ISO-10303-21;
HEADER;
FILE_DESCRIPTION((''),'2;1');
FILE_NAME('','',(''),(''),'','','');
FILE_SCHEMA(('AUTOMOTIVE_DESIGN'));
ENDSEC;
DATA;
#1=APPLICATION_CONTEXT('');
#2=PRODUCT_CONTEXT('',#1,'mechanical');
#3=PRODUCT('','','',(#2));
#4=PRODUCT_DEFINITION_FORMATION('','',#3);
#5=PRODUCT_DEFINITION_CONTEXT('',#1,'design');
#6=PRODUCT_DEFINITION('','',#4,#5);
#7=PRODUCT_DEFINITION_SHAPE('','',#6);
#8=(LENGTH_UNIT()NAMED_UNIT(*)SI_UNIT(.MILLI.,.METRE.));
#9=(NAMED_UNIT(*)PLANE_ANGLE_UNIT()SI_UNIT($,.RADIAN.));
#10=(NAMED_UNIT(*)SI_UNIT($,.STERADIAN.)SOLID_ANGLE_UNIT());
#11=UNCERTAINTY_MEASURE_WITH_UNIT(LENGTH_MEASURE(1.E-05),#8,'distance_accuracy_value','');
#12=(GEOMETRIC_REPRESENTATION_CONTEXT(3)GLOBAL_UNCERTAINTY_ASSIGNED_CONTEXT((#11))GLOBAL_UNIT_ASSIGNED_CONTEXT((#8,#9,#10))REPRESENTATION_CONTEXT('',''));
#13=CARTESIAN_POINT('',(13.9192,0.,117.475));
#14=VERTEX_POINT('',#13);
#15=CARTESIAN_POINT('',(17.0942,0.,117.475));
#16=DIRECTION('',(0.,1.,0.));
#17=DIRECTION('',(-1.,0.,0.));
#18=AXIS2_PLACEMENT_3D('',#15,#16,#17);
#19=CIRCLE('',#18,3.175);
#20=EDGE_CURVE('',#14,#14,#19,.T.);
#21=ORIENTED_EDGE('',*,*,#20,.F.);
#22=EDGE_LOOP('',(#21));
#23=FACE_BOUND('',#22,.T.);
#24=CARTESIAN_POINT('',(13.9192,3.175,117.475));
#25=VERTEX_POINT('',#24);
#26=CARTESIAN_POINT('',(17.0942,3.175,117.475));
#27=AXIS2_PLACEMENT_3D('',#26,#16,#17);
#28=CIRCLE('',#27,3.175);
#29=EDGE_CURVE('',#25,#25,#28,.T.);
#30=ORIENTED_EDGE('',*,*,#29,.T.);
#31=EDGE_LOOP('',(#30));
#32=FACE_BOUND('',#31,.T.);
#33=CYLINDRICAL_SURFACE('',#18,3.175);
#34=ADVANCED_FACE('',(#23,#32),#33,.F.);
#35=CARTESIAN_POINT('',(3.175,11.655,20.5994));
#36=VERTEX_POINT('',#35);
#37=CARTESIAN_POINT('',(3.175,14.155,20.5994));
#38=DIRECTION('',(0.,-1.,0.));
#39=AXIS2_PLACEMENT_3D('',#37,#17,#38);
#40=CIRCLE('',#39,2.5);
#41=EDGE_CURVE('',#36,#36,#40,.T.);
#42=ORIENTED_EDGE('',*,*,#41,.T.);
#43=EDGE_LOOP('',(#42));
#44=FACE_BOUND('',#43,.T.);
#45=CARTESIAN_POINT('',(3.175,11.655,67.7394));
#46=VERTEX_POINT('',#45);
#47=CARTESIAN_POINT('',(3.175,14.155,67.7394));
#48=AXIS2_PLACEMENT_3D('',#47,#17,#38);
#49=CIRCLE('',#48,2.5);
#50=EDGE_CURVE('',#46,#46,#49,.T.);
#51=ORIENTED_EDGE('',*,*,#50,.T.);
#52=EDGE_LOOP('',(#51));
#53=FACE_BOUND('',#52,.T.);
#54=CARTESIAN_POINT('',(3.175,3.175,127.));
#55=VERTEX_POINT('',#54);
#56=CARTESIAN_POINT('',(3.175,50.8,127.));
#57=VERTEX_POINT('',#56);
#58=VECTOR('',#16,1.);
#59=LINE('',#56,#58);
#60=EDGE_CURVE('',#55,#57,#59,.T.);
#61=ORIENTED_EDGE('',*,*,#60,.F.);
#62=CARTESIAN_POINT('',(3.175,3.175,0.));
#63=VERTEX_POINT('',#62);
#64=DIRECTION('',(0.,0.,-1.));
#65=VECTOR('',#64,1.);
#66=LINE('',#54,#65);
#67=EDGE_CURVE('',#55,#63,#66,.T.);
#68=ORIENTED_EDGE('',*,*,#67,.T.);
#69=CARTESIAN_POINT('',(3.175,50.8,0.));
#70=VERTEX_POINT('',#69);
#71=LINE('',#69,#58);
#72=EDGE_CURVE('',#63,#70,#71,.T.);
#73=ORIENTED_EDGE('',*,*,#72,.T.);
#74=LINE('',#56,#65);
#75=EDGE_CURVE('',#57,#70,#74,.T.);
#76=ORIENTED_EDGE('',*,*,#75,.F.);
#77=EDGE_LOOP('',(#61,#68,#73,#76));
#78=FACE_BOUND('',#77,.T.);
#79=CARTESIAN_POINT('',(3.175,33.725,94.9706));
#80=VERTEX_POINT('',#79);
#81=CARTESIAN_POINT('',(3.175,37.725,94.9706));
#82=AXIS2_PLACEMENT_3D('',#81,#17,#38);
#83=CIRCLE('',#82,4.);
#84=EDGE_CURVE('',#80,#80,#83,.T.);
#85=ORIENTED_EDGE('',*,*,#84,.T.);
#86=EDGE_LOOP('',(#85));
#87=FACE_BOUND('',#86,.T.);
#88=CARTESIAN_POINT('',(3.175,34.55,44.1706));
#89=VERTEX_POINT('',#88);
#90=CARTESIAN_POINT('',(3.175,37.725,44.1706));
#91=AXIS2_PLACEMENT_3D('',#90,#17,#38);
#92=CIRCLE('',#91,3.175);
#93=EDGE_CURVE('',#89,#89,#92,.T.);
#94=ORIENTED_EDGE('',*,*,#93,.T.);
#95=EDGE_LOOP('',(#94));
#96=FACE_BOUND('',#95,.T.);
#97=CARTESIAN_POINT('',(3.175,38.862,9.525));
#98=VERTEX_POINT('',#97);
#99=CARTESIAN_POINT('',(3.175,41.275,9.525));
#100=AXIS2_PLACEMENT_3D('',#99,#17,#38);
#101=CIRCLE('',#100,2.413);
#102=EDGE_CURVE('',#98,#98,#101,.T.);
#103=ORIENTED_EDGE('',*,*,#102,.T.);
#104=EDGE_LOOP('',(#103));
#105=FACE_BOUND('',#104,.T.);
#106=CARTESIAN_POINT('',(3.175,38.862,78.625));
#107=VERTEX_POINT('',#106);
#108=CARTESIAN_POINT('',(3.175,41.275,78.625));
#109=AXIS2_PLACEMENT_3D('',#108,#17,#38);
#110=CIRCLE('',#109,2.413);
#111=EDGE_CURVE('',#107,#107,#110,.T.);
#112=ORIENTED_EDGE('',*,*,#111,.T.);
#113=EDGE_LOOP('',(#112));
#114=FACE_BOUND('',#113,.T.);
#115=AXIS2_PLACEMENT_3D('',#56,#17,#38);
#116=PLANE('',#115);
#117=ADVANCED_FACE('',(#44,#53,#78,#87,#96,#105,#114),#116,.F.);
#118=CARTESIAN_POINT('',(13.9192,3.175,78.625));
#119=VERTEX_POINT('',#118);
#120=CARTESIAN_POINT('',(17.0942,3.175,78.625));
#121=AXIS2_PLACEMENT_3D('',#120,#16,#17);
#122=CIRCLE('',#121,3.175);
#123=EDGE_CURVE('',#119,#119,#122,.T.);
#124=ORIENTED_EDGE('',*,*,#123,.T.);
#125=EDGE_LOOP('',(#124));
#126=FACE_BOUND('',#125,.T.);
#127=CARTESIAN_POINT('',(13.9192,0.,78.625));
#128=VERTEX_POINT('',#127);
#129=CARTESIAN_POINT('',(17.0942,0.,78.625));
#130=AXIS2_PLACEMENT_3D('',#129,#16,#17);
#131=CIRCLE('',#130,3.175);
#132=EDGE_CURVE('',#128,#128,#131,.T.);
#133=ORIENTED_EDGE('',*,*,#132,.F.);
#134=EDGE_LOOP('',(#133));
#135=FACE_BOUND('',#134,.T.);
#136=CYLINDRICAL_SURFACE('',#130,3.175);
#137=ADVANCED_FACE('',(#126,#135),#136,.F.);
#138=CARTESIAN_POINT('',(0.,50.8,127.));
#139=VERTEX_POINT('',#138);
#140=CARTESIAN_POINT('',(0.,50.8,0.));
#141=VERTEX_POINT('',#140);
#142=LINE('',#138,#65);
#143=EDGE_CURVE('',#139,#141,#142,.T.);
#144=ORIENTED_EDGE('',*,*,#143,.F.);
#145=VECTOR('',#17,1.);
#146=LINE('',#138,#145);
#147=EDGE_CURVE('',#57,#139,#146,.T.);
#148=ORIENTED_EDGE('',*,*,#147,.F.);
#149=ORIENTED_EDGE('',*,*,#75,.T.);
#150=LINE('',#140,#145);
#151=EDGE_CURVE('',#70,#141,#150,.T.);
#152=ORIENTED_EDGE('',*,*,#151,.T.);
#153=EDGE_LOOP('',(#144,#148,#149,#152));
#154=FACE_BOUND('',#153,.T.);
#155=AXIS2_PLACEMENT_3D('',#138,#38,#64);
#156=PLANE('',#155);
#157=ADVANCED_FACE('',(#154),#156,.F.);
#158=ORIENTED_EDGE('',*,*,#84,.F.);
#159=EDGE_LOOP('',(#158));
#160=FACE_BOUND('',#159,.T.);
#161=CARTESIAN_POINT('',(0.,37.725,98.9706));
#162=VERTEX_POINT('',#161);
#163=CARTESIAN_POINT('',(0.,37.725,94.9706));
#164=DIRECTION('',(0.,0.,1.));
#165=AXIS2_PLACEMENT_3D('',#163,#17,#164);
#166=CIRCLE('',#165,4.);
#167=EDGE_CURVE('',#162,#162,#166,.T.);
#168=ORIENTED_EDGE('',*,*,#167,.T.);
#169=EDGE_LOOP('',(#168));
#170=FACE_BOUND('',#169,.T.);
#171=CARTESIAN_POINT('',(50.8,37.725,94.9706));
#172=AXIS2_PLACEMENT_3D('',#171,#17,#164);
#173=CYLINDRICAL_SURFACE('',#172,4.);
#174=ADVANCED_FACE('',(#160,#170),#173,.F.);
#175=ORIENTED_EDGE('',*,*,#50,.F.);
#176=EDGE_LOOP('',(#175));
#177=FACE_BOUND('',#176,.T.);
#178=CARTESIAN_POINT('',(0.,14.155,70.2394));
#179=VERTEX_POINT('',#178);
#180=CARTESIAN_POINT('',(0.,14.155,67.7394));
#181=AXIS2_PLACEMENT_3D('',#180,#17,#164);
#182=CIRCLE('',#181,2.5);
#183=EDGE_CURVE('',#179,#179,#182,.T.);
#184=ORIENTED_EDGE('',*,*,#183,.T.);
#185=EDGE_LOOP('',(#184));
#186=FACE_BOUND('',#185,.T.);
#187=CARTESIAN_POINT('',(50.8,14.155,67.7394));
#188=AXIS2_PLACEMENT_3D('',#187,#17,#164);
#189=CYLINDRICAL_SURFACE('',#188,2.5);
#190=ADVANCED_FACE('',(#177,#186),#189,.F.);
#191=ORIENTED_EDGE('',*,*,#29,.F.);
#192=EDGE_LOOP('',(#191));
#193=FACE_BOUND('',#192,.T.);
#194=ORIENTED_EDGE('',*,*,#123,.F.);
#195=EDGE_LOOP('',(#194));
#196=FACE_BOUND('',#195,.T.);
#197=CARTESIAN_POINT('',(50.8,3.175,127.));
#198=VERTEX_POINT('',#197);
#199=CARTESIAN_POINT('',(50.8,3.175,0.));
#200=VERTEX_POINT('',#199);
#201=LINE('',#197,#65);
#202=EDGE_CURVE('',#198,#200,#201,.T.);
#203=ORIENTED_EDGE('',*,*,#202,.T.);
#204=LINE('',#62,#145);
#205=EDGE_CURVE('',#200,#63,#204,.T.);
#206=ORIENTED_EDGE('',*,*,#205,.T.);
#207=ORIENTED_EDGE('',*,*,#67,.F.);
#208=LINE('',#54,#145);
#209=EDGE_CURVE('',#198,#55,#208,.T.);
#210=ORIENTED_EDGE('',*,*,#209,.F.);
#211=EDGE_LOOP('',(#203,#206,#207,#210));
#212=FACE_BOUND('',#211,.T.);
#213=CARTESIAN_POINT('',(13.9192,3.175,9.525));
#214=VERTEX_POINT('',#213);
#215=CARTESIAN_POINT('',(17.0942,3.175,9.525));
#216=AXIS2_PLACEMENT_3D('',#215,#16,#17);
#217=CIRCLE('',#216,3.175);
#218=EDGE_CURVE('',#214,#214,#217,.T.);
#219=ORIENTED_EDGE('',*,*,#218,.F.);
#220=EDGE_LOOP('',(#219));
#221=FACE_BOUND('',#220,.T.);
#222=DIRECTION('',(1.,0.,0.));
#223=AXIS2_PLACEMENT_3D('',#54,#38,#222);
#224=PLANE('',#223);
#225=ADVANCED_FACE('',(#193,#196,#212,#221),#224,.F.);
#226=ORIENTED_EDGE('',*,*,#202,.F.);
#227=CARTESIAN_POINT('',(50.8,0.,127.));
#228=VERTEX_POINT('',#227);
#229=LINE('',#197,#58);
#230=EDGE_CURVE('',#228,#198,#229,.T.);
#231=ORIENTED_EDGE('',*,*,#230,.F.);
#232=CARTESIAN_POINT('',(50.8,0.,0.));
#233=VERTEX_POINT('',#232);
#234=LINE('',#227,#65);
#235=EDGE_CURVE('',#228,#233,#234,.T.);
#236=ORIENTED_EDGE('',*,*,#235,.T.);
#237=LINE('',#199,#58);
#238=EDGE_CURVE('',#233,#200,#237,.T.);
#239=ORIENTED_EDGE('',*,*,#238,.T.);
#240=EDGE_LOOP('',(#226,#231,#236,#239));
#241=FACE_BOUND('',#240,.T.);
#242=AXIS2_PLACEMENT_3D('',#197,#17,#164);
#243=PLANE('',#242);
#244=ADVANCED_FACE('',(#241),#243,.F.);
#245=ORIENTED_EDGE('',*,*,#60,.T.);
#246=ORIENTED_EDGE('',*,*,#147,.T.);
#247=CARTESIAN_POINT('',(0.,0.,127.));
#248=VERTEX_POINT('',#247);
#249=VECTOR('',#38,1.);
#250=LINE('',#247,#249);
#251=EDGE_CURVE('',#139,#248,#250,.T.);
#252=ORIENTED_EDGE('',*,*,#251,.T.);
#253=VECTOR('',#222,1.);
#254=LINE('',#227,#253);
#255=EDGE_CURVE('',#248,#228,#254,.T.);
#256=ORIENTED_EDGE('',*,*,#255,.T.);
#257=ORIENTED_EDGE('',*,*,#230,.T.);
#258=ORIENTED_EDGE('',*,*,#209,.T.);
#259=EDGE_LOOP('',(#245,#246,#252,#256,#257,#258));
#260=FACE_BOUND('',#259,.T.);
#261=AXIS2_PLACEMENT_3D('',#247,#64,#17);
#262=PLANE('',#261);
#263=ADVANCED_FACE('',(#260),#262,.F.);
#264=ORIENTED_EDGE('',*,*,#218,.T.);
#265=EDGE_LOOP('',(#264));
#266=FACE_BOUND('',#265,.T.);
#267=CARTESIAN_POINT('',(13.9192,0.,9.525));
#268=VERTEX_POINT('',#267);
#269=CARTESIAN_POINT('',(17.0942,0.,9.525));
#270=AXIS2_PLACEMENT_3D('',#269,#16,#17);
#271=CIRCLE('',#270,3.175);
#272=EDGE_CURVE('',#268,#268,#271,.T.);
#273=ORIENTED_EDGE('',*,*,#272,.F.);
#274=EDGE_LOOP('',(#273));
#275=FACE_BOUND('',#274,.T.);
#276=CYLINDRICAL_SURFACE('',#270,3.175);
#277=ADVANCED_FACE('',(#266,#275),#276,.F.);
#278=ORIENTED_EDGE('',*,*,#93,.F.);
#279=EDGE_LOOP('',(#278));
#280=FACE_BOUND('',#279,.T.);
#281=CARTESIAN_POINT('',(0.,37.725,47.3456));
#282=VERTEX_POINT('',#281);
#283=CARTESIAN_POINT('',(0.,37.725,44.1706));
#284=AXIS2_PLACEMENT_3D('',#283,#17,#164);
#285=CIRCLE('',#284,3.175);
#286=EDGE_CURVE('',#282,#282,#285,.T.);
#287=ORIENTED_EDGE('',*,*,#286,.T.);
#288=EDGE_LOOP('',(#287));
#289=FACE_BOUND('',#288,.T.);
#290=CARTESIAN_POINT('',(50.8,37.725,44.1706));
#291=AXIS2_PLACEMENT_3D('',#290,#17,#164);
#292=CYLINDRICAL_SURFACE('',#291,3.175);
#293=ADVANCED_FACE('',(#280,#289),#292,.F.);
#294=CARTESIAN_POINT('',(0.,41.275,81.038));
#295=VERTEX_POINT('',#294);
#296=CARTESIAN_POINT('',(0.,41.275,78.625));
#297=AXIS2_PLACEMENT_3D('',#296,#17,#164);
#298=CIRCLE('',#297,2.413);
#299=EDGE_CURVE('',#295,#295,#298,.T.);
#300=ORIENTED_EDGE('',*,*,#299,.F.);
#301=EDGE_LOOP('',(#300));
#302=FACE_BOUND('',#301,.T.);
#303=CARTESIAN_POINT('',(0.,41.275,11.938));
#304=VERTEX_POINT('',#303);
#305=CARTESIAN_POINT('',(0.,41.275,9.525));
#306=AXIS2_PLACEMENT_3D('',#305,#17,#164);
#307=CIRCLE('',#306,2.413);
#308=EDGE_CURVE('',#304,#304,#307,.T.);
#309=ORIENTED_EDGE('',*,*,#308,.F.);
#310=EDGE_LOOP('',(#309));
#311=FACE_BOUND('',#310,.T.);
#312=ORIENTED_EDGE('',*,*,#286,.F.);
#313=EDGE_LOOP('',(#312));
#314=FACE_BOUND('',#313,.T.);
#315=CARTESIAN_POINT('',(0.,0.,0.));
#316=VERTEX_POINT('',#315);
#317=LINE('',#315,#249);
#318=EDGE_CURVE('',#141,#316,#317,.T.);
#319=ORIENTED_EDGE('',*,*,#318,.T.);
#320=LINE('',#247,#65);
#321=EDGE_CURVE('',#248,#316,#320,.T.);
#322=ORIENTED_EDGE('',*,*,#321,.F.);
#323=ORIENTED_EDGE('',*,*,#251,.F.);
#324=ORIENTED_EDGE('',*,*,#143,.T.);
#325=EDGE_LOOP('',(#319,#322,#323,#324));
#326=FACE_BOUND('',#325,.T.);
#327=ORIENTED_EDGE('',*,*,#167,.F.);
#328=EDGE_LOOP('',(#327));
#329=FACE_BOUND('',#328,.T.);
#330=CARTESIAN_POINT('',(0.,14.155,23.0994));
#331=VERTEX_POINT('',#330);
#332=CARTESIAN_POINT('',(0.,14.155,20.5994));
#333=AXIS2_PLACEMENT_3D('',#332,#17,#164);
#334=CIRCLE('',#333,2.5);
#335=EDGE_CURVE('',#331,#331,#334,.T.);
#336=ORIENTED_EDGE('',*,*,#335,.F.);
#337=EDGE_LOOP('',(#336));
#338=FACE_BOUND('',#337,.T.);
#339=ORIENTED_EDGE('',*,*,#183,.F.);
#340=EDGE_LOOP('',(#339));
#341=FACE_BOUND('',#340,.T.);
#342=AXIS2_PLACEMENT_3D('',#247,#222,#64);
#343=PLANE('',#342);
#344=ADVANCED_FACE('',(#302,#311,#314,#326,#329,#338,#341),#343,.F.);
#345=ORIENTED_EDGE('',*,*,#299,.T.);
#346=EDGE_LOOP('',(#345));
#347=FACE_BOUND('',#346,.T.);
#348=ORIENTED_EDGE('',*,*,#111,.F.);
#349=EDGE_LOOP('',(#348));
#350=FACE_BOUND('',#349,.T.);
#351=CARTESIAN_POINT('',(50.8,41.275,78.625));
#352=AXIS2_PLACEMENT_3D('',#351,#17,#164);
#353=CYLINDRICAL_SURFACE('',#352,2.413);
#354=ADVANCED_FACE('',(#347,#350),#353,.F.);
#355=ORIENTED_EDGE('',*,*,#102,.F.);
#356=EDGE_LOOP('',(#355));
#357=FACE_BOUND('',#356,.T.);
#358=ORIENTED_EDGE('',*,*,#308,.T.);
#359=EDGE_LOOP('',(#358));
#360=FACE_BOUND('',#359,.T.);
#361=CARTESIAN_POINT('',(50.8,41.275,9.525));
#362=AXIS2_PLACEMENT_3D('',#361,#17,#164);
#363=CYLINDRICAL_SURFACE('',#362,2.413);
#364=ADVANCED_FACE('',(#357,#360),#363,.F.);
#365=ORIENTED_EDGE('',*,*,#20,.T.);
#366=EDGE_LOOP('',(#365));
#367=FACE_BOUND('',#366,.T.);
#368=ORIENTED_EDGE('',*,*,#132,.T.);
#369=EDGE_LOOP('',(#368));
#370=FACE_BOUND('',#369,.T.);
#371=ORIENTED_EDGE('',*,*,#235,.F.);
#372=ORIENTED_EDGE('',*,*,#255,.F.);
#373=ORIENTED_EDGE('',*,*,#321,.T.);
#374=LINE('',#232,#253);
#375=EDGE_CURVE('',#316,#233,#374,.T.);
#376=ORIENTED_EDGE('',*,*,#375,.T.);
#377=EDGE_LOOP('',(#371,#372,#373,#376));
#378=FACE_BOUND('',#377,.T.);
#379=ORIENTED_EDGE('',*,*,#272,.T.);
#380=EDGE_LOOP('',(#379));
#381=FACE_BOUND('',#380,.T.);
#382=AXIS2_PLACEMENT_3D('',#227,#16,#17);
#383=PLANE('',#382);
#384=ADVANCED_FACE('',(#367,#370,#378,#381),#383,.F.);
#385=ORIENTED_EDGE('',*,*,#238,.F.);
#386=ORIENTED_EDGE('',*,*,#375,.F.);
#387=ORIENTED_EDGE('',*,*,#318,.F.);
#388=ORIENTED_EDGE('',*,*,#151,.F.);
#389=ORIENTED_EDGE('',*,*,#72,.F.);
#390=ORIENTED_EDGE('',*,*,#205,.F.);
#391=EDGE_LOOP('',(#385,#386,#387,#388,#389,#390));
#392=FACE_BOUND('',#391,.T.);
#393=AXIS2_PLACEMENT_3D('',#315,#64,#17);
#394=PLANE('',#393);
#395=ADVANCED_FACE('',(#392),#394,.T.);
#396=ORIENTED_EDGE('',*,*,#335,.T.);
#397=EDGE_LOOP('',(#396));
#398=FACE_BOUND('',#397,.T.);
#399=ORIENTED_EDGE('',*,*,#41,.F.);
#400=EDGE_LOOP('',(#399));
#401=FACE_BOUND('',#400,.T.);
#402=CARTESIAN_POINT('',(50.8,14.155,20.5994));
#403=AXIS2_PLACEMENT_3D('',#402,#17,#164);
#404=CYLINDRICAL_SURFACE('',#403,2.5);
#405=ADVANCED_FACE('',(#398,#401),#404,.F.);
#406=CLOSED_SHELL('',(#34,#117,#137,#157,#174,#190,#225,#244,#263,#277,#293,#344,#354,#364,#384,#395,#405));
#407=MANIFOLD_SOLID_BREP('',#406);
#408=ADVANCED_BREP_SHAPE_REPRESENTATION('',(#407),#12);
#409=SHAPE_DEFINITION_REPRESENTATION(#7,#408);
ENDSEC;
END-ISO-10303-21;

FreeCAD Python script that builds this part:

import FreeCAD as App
import Part
import Sketcher
from FreeCAD import Vector
Q = App.Units.Quantity


def add_polygon(sketch, points):
    """Adds a closed chain of lines whose ends are joined by coincident constraints."""
    first, n = sketch.GeometryCount, len(points)
    for a, b in zip(points, points[1:] + points[:1]):
        sketch.addGeometry(Part.LineSegment(App.Vector(*a, 0), App.Vector(*b, 0)), False)
    for i in range(n):
        sketch.addConstraint(Sketcher.Constraint("Coincident", first + i, 2, first + (i + 1) % n, 1))

doc = App.newDocument("Part")
body = doc.addObject("PartDesign::Body", "Body")

# Sketch on XY plane
sketch1 = body.newObject("Sketcher::SketchObject", "Sketch")
sketch1.AttachmentSupport = (doc.getObject("XY_Plane"), [""])
sketch1.MapMode = "FlatFace"
add_polygon(sketch1, [(0, 50.8), (0, 0), (50.8, 0), (50.8, 3.175), (3.175, 3.175), (3.175, 50.8)])  # lines 0-5
sketch1.addConstraint(Sketcher.Constraint("Vertical", 0))
sketch1.addConstraint(Sketcher.Constraint("Horizontal", 1))
sketch1.addConstraint(Sketcher.Constraint("Vertical", 2))
sketch1.addConstraint(Sketcher.Constraint("Horizontal", 3))
sketch1.addConstraint(Sketcher.Constraint("Vertical", 4))
sketch1.addConstraint(Sketcher.Constraint("Horizontal", 5))
sketch1.addConstraint(Sketcher.Constraint("Coincident", 0, 2, -1, 1))
sketch1.addConstraint(Sketcher.Constraint("Equal", 1, 0))
sketch1.addConstraint(Sketcher.Constraint("Equal", 5, 2))
sketch1.addConstraint(Sketcher.Constraint("DistanceX", 1, 1, 1, 2, Q("2 in")))
sketch1.addConstraint(Sketcher.Constraint("DistanceX", 3, 2, 3, 1, Q("1.875 in")))
pad1 = body.newObject("PartDesign::Pad", "Pad")
pad1.Profile = sketch1
pad1.Length = Q("5 in")

# Sketch on XZ plane
sketch2 = body.newObject("Sketcher::SketchObject", "Sketch001")
sketch2.AttachmentSupport = (doc.getObject("XZ_Plane"), [""])
sketch2.MapMode = "FlatFace"
sketch2.AttachmentOffset = App.Placement(Vector(0, 0, -0.125 * 25.4), App.Rotation())
sketch2.addGeometry(Part.Circle(Vector(17.0942, 9.525, 0), Vector(0, 0, 1), 3.175), False)
sketch2.addGeometry(Part.Circle(Vector(17.0942, 78.625, 0), Vector(0, 0, 1), 3.175), False)
sketch2.addGeometry(Part.Circle(Vector(17.0942, 117.475, 0), Vector(0, 0, 1), 3.175), False)
sketch2.addConstraint(Sketcher.Constraint("Equal", 0, 1))
sketch2.addConstraint(Sketcher.Constraint("Equal", 1, 2))
sketch2.addConstraint(Sketcher.Constraint("Vertical", 0, 3, 1, 3))
sketch2.addConstraint(Sketcher.Constraint("Vertical", 1, 3, 2, 3))
sketch2.addConstraint(Sketcher.Constraint("Diameter", 0, Q("0.25 in")))
sketch2.addConstraint(Sketcher.Constraint("DistanceY", 0, 3, 2, 3, Q("4.25 in")))
sketch2.addConstraint(Sketcher.Constraint("DistanceX", -1, 1, 0, 3, Q("0.673 in")))
sketch2.addConstraint(Sketcher.Constraint("DistanceY", -1, 1, 0, 3, Q("0.375 in")))
sketch2.addConstraint(Sketcher.Constraint("DistanceY", -1, 1, 1, 3, 78.625))
pocket1 = body.newObject("PartDesign::Pocket", "Pocket")
pocket1.Profile = sketch2
pocket1.Type = "ThroughAll"
pocket1.Reversed = True

# Sketch on YZ plane
sketch3 = body.newObject("Sketcher::SketchObject", "Sketch002")
sketch3.AttachmentSupport = (doc.getObject("YZ_Plane"), [""])
sketch3.MapMode = "FlatFace"
sketch3.addGeometry(Part.Circle(Vector(14.155, 20.5994, 0), Vector(0, 0, 1), 2.5), False)
sketch3.addGeometry(Part.Circle(Vector(41.275, 9.525, 0), Vector(0, 0, 1), 2.413), False)
sketch3.addGeometry(Part.Circle(Vector(14.155, 67.7394, 0), Vector(0, 0, 1), 2.5), False)
sketch3.addGeometry(Part.Circle(Vector(41.275, 78.625, 0), Vector(0, 0, 1), 2.413), False)
sketch3.addGeometry(Part.Circle(Vector(37.725, 44.1706, 0), Vector(0, 0, 1), 3.175), False)
sketch3.addGeometry(Part.Circle(Vector(37.725, 94.9706, 0), Vector(0, 0, 1), 4), False)
sketch3.addConstraint(Sketcher.Constraint("Equal", 0, 2))
sketch3.addConstraint(Sketcher.Constraint("Equal", 1, 3))
sketch3.addConstraint(Sketcher.Constraint("Vertical", 0, 3, 2, 3))
sketch3.addConstraint(Sketcher.Constraint("Vertical", 1, 3, 3, 3))
sketch3.addConstraint(Sketcher.Constraint("Vertical", 4, 3, 5, 3))
sketch3.addConstraint(Sketcher.Constraint("Diameter", 1, Q("0.19 in")))
sketch3.addConstraint(Sketcher.Constraint("Diameter", 4, Q("0.25 in")))
sketch3.addConstraint(Sketcher.Constraint("DistanceY", 4, 3, 5, 3, Q("2 in")))
sketch3.addConstraint(Sketcher.Constraint("Diameter", 0, 5.0))
sketch3.addConstraint(Sketcher.Constraint("Diameter", 5, 8.0))
sketch3.addConstraint(Sketcher.Constraint("DistanceY", -1, 1, 0, 3, Q("0.811 in")))
sketch3.addConstraint(Sketcher.Constraint("DistanceX", -1, 1, 1, 3, Q("1.625 in")))
sketch3.addConstraint(Sketcher.Constraint("DistanceY", -1, 1, 1, 3, Q("0.375 in")))
sketch3.addConstraint(Sketcher.Constraint("DistanceY", -1, 1, 4, 3, Q("1.739 in")))
sketch3.addConstraint(Sketcher.Constraint("DistanceX", -1, 1, 0, 3, 14.155))
sketch3.addConstraint(Sketcher.Constraint("DistanceY", -1, 1, 2, 3, 67.7394))
sketch3.addConstraint(Sketcher.Constraint("DistanceY", -1, 1, 3, 3, 78.625))
sketch3.addConstraint(Sketcher.Constraint("DistanceX", -1, 1, 4, 3, 37.725))
pocket2 = body.newObject("PartDesign::Pocket", "Pocket001")
pocket2.Profile = sketch3
pocket2.Type = "ThroughAll"
pocket2.Reversed = True

doc.recompute()
